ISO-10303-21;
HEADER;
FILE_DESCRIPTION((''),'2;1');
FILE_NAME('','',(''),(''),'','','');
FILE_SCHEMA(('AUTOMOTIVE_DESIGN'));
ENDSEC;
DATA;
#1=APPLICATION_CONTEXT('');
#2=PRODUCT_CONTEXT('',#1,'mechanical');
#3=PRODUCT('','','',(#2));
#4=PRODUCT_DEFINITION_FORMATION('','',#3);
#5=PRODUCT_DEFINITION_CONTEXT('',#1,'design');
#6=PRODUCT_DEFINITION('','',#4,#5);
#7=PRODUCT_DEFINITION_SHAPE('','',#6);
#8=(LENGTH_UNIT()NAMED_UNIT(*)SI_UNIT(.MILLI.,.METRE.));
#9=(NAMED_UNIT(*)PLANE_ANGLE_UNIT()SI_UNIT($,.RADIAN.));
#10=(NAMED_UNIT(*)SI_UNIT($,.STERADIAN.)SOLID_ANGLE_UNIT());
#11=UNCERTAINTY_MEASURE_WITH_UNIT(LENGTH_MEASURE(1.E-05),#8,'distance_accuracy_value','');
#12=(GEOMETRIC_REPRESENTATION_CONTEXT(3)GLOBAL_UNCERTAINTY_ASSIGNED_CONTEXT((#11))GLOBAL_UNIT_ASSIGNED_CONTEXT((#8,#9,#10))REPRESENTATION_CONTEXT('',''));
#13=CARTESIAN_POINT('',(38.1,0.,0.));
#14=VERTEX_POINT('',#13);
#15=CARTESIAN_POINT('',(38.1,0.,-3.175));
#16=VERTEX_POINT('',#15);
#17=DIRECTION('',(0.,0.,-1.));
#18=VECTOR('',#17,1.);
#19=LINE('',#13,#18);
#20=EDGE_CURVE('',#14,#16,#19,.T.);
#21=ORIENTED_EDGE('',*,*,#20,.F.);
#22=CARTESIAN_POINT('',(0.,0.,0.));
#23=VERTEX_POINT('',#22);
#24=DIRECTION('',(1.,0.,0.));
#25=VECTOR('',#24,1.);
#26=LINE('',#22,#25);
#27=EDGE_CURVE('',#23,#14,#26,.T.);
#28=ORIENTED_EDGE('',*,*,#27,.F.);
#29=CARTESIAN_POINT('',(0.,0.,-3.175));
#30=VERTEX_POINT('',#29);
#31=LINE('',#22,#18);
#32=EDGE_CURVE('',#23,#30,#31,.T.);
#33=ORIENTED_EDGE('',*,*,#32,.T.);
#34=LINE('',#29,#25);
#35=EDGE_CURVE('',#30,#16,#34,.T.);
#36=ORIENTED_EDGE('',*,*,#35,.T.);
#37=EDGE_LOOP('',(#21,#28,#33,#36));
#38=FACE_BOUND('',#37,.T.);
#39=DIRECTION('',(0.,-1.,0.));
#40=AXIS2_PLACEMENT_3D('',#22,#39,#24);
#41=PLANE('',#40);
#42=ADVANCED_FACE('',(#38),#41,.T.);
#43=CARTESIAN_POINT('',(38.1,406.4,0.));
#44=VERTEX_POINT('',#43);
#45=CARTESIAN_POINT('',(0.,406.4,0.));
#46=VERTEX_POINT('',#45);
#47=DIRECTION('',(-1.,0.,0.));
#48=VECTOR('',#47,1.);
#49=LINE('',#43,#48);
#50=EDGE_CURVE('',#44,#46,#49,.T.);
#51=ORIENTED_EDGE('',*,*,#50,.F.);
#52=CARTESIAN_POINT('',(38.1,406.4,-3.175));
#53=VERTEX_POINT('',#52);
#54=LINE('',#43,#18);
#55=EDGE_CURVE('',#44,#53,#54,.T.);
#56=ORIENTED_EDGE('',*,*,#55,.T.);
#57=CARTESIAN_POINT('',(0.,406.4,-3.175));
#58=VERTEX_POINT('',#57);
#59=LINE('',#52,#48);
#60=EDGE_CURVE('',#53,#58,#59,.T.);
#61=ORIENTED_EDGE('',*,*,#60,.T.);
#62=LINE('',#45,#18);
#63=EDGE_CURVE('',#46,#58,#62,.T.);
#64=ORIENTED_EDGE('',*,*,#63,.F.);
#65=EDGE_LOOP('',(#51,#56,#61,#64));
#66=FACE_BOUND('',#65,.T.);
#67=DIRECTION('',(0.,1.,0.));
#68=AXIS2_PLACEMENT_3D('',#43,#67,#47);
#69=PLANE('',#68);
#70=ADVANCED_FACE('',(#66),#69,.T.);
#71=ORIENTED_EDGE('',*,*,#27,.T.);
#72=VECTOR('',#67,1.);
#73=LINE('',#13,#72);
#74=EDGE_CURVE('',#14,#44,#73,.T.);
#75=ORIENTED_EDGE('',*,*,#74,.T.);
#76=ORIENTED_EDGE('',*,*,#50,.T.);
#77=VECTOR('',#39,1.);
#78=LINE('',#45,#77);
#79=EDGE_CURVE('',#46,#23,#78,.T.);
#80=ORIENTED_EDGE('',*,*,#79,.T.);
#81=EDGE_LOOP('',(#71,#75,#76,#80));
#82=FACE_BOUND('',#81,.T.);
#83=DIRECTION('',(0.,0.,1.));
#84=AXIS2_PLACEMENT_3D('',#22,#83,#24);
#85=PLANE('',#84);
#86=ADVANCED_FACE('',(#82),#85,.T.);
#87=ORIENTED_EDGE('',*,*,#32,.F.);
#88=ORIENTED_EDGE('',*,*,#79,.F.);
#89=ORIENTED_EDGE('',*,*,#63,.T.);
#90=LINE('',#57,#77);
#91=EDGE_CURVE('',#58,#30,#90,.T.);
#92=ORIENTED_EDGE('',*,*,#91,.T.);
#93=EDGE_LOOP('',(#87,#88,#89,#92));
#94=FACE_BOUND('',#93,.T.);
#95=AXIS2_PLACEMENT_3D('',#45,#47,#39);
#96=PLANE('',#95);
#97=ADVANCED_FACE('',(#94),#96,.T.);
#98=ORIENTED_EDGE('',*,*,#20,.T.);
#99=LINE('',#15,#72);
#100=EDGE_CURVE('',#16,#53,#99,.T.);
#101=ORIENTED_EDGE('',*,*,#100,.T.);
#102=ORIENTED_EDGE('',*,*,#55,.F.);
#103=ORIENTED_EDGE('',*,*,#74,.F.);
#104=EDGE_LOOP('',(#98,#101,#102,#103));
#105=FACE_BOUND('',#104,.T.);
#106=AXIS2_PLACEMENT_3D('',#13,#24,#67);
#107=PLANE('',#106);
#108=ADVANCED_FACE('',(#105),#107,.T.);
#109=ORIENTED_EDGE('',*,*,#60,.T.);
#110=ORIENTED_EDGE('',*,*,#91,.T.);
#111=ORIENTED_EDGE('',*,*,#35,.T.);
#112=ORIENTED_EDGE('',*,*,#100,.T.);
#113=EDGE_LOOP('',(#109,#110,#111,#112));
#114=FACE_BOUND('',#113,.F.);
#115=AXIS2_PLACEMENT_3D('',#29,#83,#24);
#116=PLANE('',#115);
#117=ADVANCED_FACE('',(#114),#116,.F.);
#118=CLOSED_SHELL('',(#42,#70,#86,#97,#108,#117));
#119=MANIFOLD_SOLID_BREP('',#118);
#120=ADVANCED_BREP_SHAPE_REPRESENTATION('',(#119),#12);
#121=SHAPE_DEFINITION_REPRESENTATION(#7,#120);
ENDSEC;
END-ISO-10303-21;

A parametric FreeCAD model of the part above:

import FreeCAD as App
import Part
import Sketcher
Q = App.Units.Quantity

doc = App.newDocument("Part")
params = doc.addObject("Spreadsheet::Sheet", "Params")
for row, (alias, value) in enumerate([
    ("sketch1_height", "16 in"),
    ("sketch1_width", "1.5 in"),
    ("pad1_length", "0.125 in"),
], start=1):
    params.set(f"A{row}", alias)
    params.set(f"B{row}", "=" + value)
    params.setAlias(f"B{row}", alias)

body = doc.addObject("PartDesign::Body", "Body")

# Sketch on XY plane
sketch1 = body.newObject("Sketcher::SketchObject", "Sketch")
sketch1.AttachmentSupport = (doc.getObject("XY_Plane"), [""])
sketch1.MapMode = "FlatFace"
sketch1.addGeometry([
    Part.LineSegment(App.Vector(0, 406, 0), App.Vector(0, 0, 0)),
    Part.LineSegment(App.Vector(0, 0, 0), App.Vector(38, 0, 0)),
    Part.LineSegment(App.Vector(38, 0, 0), App.Vector(38, 406, 0)),
    Part.LineSegment(App.Vector(38, 406, 0), App.Vector(0, 406, 0)),
], False)
sketch1.addConstraint([
    Sketcher.Constraint("Coincident", 0, 2, 1, 1),
    Sketcher.Constraint("Coincident", 1, 2, 2, 1),
    Sketcher.Constraint("Coincident", 2, 2, 3, 1),
    Sketcher.Constraint("Coincident", 3, 2, 0, 1),
    Sketcher.Constraint("Vertical", 0),
    Sketcher.Constraint("Horizontal", 1),
    Sketcher.Constraint("Vertical", 2),
    Sketcher.Constraint("Horizontal", 3),
    Sketcher.Constraint("Coincident", 0, 2, -1, 1),
    Sketcher.Constraint("DistanceY", 0, 2, 0, 1, Q("16 in")),
    Sketcher.Constraint("DistanceX", 1, 1, 1, 2, Q("1.5 in")),
])
sketch1.setExpression("Constraints[9]", "Params.sketch1_height")
sketch1.setExpression("Constraints[10]", "Params.sketch1_width")
pad1 = body.newObject("PartDesign::Pad", "Pad")
pad1.Profile = sketch1
pad1.setExpression("Length", "Params.pad1_length")
pad1.Reversed = True

doc.recompute()
